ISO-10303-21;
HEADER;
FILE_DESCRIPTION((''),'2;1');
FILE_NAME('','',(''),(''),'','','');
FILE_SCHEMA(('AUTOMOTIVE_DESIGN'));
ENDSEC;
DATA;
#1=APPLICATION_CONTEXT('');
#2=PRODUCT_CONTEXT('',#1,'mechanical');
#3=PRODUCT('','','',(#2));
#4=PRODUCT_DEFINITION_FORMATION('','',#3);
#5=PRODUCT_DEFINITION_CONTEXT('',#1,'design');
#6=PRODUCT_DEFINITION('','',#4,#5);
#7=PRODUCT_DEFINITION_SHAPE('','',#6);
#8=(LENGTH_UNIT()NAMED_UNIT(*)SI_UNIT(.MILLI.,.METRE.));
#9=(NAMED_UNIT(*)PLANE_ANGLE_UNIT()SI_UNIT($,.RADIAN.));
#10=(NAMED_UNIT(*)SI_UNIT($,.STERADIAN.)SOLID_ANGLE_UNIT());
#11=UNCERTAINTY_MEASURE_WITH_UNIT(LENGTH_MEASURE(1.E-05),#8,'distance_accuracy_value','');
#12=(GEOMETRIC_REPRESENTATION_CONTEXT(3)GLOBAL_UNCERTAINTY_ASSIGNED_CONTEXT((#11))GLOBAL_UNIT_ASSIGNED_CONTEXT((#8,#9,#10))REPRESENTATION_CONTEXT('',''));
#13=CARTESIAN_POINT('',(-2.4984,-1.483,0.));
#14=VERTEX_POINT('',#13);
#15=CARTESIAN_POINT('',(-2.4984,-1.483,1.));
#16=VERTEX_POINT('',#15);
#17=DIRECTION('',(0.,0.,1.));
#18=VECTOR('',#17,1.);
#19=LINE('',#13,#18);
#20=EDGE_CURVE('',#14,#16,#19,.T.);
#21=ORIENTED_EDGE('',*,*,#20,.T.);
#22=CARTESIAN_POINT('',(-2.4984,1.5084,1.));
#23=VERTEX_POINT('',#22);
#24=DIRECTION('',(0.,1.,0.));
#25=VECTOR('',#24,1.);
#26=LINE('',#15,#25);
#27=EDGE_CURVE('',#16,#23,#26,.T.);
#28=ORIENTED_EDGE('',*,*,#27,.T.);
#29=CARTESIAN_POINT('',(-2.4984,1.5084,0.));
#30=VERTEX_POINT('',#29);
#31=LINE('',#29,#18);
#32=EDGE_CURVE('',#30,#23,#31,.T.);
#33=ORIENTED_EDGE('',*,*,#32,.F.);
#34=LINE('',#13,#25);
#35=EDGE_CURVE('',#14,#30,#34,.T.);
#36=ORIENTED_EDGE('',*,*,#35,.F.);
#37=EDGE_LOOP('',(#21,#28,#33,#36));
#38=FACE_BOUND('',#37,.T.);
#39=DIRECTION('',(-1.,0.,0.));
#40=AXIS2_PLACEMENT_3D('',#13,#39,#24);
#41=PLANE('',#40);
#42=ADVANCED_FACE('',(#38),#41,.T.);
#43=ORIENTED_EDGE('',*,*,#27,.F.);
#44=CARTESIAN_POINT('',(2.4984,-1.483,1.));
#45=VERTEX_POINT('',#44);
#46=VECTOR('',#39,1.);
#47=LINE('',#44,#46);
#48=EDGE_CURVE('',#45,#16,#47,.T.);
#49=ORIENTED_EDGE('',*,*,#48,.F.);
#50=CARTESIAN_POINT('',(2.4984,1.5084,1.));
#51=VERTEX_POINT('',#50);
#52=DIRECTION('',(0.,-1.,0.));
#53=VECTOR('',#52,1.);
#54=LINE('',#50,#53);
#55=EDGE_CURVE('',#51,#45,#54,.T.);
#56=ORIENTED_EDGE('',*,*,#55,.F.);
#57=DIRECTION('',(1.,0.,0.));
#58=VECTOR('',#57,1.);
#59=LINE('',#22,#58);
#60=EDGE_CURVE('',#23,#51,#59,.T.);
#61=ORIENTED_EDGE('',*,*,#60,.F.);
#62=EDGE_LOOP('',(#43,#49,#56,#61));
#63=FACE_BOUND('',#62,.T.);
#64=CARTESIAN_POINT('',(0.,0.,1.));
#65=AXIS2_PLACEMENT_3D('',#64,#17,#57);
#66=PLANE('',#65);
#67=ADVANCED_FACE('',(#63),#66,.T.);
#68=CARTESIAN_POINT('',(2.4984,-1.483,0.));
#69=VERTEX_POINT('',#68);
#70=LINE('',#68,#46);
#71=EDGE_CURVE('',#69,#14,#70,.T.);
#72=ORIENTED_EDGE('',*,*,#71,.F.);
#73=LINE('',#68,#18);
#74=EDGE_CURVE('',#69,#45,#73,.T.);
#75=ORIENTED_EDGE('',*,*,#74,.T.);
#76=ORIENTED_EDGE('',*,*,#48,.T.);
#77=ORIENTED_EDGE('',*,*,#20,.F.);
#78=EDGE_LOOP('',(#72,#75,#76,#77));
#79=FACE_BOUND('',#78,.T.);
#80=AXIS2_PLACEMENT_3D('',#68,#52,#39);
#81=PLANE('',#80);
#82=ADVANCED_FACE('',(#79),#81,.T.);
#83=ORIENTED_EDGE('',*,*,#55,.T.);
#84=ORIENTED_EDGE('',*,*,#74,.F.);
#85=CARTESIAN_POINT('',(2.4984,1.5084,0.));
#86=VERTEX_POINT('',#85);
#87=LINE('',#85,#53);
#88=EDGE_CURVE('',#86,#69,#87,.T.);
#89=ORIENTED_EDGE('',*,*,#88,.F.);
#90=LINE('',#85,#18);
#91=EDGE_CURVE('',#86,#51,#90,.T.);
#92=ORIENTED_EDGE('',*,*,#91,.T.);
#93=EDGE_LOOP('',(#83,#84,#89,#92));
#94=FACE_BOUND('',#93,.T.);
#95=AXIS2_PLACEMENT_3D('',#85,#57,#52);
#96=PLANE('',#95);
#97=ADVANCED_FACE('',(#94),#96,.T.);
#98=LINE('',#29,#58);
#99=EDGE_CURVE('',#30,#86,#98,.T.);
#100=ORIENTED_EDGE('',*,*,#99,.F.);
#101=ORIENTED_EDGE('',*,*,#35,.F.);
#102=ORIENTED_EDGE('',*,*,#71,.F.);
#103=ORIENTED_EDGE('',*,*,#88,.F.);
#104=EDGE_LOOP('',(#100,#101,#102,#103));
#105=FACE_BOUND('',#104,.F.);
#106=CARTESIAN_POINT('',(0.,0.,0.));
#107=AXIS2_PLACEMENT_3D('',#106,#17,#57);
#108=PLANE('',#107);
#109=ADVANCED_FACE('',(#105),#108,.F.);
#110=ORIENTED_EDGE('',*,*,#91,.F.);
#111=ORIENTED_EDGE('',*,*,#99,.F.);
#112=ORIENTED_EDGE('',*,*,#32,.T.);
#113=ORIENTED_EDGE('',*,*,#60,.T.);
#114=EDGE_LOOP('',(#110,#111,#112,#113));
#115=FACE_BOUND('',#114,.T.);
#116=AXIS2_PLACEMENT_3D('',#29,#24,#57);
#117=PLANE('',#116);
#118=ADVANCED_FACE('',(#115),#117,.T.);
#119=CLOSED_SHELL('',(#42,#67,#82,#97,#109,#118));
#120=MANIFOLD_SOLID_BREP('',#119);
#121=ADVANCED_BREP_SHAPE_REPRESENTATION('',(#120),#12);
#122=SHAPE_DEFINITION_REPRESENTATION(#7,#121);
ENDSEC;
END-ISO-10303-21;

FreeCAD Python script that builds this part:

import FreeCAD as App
import Part
import Sketcher
from FreeCAD import Vector
Q = App.Units.Quantity


def add_polygon(sketch, points):
    """Adds a closed chain of lines whose ends are joined by coincident constraints."""
    first, n = sketch.GeometryCount, len(points)
    for a, b in zip(points, points[1:] + points[:1]):
        sketch.addGeometry(Part.LineSegment(App.Vector(*a, 0), App.Vector(*b, 0)), False)
    for i in range(n):
        sketch.addConstraint(Sketcher.Constraint("Coincident", first + i, 2, first + (i + 1) % n, 1))

doc = App.newDocument("Part")
body = doc.addObject("PartDesign::Body", "Body")

# Sketch on XY plane
sketch1 = body.newObject("Sketcher::SketchObject", "Sketch")
sketch1.AttachmentSupport = (doc.getObject("XY_Plane"), [""])
sketch1.MapMode = "FlatFace"
add_polygon(sketch1, [(2.5, 1.5), (-2.5, 1.5), (-2.5, -1.5), (2.5, -1.5)])  # lines 0-3
sketch1.addConstraint([
    Sketcher.Constraint("Horizontal", 0),
    Sketcher.Constraint("Vertical", 1),
    Sketcher.Constraint("Horizontal", 2),
    Sketcher.Constraint("Vertical", 3),
    Sketcher.Constraint("DistanceX", 0, 2, 0, 1, Q("4.9968 mm")),
    Sketcher.Constraint("DistanceY", 1, 2, 1, 1, Q("2.9914 mm")),
    Sketcher.Constraint("DistanceY", 1, 2, -1, 1, Q("1.483 mm")),
    Sketcher.Constraint("DistanceX", 0, 2, -1, 1, Q("2.4984 mm")),
])
pad1 = body.newObject("PartDesign::Pad", "Pad")
pad1.Profile = sketch1
pad1.Length = 1

doc.recompute()
